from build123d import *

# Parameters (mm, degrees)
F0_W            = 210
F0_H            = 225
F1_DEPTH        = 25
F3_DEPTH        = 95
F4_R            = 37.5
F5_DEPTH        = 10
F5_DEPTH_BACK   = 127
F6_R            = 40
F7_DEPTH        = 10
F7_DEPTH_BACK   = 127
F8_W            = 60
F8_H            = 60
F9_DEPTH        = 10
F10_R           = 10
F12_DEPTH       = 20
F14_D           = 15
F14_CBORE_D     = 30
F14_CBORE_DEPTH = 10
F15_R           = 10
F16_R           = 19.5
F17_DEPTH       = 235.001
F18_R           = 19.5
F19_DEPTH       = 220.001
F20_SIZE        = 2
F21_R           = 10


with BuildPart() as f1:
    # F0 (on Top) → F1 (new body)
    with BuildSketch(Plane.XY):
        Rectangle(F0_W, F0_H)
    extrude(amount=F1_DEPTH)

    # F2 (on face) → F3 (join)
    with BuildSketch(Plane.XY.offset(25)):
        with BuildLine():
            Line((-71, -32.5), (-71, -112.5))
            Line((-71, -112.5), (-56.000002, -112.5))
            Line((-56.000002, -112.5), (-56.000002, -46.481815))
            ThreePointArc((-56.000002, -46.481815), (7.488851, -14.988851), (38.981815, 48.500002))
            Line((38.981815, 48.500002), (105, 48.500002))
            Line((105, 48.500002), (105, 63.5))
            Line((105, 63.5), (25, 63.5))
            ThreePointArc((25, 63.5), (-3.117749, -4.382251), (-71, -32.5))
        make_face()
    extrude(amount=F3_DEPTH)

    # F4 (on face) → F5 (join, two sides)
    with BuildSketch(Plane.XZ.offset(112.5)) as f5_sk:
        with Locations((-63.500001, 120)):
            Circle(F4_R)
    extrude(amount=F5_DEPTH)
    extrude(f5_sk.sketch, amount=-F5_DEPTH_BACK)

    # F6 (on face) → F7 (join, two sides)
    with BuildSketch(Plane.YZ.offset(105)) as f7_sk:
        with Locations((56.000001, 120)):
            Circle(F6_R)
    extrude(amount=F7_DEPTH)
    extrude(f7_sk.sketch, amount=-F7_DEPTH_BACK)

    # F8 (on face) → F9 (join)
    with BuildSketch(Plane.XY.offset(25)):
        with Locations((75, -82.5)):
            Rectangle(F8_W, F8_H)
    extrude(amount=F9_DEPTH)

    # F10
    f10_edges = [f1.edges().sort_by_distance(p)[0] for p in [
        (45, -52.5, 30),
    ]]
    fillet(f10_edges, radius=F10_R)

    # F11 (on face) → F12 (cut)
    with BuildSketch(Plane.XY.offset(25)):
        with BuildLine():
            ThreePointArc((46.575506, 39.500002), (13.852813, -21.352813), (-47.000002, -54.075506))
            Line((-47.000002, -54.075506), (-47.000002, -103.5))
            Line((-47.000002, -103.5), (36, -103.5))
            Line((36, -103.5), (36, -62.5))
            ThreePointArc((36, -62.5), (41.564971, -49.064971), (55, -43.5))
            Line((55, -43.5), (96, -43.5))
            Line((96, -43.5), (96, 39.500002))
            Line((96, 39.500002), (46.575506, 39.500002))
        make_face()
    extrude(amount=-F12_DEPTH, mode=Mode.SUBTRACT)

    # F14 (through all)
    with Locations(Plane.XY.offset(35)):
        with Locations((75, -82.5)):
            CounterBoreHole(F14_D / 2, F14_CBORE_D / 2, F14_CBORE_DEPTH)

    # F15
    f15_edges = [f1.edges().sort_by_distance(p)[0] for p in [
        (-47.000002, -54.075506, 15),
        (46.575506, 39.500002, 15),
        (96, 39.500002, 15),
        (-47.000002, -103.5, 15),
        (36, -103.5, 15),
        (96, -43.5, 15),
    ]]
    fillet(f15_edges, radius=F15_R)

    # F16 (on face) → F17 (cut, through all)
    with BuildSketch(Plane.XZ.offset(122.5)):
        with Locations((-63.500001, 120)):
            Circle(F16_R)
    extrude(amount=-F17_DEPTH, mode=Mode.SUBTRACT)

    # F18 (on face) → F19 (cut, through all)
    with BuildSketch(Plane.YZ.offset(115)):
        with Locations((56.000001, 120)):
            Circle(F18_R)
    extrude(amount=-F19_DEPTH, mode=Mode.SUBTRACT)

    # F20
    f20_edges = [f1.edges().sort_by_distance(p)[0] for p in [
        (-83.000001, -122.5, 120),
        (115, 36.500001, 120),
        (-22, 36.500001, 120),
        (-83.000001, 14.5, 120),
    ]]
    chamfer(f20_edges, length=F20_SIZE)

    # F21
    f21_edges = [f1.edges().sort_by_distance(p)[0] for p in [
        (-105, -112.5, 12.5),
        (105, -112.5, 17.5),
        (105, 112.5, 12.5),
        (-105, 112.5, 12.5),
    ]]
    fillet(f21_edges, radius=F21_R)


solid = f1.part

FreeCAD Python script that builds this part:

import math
import FreeCAD as App
import Part
import Sketcher

V = App.Vector


def edges_at(feature, points):
    """Names of the edges that pass closest to the given points."""
    edges = feature.Shape.Edges
    near = lambda p: min(range(len(edges)), key=lambda i: edges[i].distToShape(Part.Vertex(*p))[0])
    return sorted({f"Edge{near(p) + 1}" for p in points})

doc = App.newDocument("Part")
params = doc.addObject("Spreadsheet::Sheet", "Params")
for row, (alias, value) in enumerate([
    ("sketch1_width", "210 mm"),
    ("sketch1_height", "225 mm"),
    ("pad1_length", "25 mm"),
    ("sketch2_radius", "111 mm"),
    ("sketch2_radius2", "96 mm"),
    ("sketch2_width", "80 mm"),
    ("pad2_length", "95 mm"),
    ("sketch3_diameter", "75 mm"),
    ("pad3_length", "10 mm"),
    ("pad3_length2", "127 mm"),
    ("sketch4_diameter", "80 mm"),
    ("pad4_length", "10 mm"),
    ("pad4_length2", "127 mm"),
    ("sketch5_width", "60 mm"),
    ("pad5_length", "10 mm"),
    ("fillet_radius", "10 mm"),
    ("sketch6_radius", "18.999999 mm"),
    ("sketch6_width", "83.000002 mm"),
    ("sketch6_width2", "41 mm"),
    ("pocket1_length", "20 mm"),
    ("sketch7_diameter", "15 mm"),
    ("hole_diameter", "15 mm"),
    ("hole_cbore_diameter", "30 mm"),
    ("hole_cbore_depth", "10 mm"),
    ("fillet2_radius", "10 mm"),
    ("sketch8_diameter", "39 mm"),
    ("sketch9_diameter", "39 mm"),
    ("chamfer_size", "2 mm"),
    ("fillet3_radius", "10 mm"),
], start=1):
    params.set(f"A{row}", alias)
    params.set(f"B{row}", "=" + value)
    params.setAlias(f"B{row}", alias)

body = doc.addObject("PartDesign::Body", "Body")

# Sketch on XY plane
sketch1 = doc.addObject("Sketcher::SketchObject", "Sketch")
body.addObject(sketch1)
sketch1.AttachmentSupport = (doc.XY_Plane, [""])
sketch1.MapMode = "FlatFace"
sketch1.addGeometry([
    Part.LineSegment(V(-105, 112, 0), V(-105, -112, 0)),
    Part.LineSegment(V(-105, -112, 0), V(105, -112, 0)),
    Part.LineSegment(V(105, -112, 0), V(105, 112, 0)),
    Part.LineSegment(V(105, 112, 0), V(-105, 112, 0)),
], False)
sketch1.addConstraint([
    Sketcher.Constraint("Coincident", 0, 2, 1, 1),
    Sketcher.Constraint("Coincident", 1, 2, 2, 1),
    Sketcher.Constraint("Coincident", 2, 2, 3, 1),
    Sketcher.Constraint("Coincident", 3, 2, 0, 1),
    Sketcher.Constraint("Vertical", 0),
    Sketcher.Constraint("Horizontal", 1),
    Sketcher.Constraint("Vertical", 2),
    Sketcher.Constraint("Horizontal", 3),
    Sketcher.Constraint("Symmetric", 0, 2, 2, 2, -1, 1),
    Sketcher.Constraint("DistanceX", 1, 1, 1, 2, 210.0),
    Sketcher.Constraint("DistanceY", 0, 2, 0, 1, 225.0),
])
sketch1.setExpression("Constraints[9]", "Params.sketch1_width")
sketch1.setExpression("Constraints[10]", "Params.sketch1_height")
pad1 = doc.addObject("PartDesign::Pad", "Pad")
body.addObject(pad1)
pad1.Profile = sketch1
pad1.setExpression("Length", "Params.pad1_length")

# Sketch on XY plane
sketch2 = doc.addObject("Sketcher::SketchObject", "Sketch001")
body.addObject(sketch2)
sketch2.AttachmentSupport = (doc.XY_Plane, [""])
sketch2.MapMode = "FlatFace"
sketch2.AttachmentOffset = App.Placement(V(0, 0, 25), App.Rotation())
sketch2.addGeometry([
    Part.LineSegment(V(-71, -32, 0), V(-71, -112, 0)),  # 0
    Part.LineSegment(V(-71, -112, 0), V(-56, -112, 0)),  # 1
    Part.LineSegment(V(-56, -112, 0), V(-56, -46, 0)),  # 2
    Part.ArcOfCircle(Part.Circle(V(-71, 64, 0), V(0, 0, 1), 111), math.radians(-82), math.radians(-8)),  # 3
    Part.LineSegment(V(39, 49, 0), V(105, 49, 0)),  # 4
    Part.LineSegment(V(105, 49, 0), V(105, 64, 0)),  # 5
    Part.LineSegment(V(105, 64, 0), V(25, 64, 0)),  # 6
    Part.ArcOfCircle(Part.Circle(V(-71, 63, 0), V(0, 0, 1), 96), math.radians(-90), math.radians(0)),  # 7
], False)
sketch2.addConstraint([
    Sketcher.Constraint("Coincident", 0, 2, 1, 1),
    Sketcher.Constraint("Coincident", 1, 2, 2, 1),
    Sketcher.Constraint("Coincident", 2, 2, 3, 1),
    Sketcher.Constraint("Coincident", 3, 2, 4, 1),
    Sketcher.Constraint("Coincident", 4, 2, 5, 1),
    Sketcher.Constraint("Coincident", 5, 2, 6, 1),
    Sketcher.Constraint("Coincident", 6, 2, 7, 2),
    Sketcher.Constraint("Coincident", 7, 1, 0, 1),
    Sketcher.Constraint("Vertical", 0),
    Sketcher.Constraint("Horizontal", 1),
    Sketcher.Constraint("Vertical", 2),
    Sketcher.Constraint("Horizontal", 4),
    Sketcher.Constraint("Vertical", 5),
    Sketcher.Constraint("Horizontal", 6),
    Sketcher.Constraint("Coincident", 7, 3, 3, 3),
    Sketcher.Constraint("Horizontal", 7, 3, 5, 2),
    Sketcher.Constraint("Vertical", 7, 3, 0, 2),
    Sketcher.Constraint("Equal", 6, 0),
    Sketcher.Constraint("Equal", 4, 2),
    Sketcher.Constraint("Radius", 3, 111.0),
    Sketcher.Constraint("Radius", 7, 96.0),
    Sketcher.Constraint("DistanceX", 6, 2, 6, 1, 80.0),
    Sketcher.Constraint("DistanceX", 3, 3, -1, 1, 71.000002),
    Sketcher.Constraint("DistanceX", 3, 3, 1, 2, 15.0),
    Sketcher.Constraint("DistanceY", -1, 1, 3, 3, 63.500002),
])
sketch2.setExpression("Constraints[19]", "Params.sketch2_radius")
sketch2.setExpression("Constraints[20]", "Params.sketch2_radius2")
sketch2.setExpression("Constraints[21]", "Params.sketch2_width")
pad2 = doc.addObject("PartDesign::Pad", "Pad001")
body.addObject(pad2)
pad2.Profile = sketch2
pad2.setExpression("Length", "Params.pad2_length")

# Sketch on XZ plane
sketch3 = doc.addObject("Sketcher::SketchObject", "Sketch002")
body.addObject(sketch3)
sketch3.AttachmentSupport = (doc.XZ_Plane, [""])
sketch3.MapMode = "FlatFace"
sketch3.AttachmentOffset = App.Placement(V(0, 0, 112.5), App.Rotation())
sketch3.addGeometry(Part.Circle(V(-64, 120, 0), V(0, 0, 1), 38), False)
sketch3.addConstraint([
    Sketcher.Constraint("Diameter", 0, 75.0),
    Sketcher.Constraint("DistanceY", -1, 1, 0, 3, 120.0),
    Sketcher.Constraint("DistanceX", 0, 3, -1, 1, 63.500001),
])
sketch3.setExpression("Constraints[0]", "Params.sketch3_diameter")
pad3 = doc.addObject("PartDesign::Pad", "Pad002")
body.addObject(pad3)
pad3.Profile = sketch3
pad3.Type = "TwoLengths"
pad3.setExpression("Length", "Params.pad3_length")
pad3.setExpression("Length2", "Params.pad3_length2")

# Sketch on YZ plane
sketch4 = doc.addObject("Sketcher::SketchObject", "Sketch003")
body.addObject(sketch4)
sketch4.AttachmentSupport = (doc.YZ_Plane, [""])
sketch4.MapMode = "FlatFace"
sketch4.AttachmentOffset = App.Placement(V(0, 0, 105), App.Rotation())
sketch4.addGeometry(Part.Circle(V(56, 120, 0), V(0, 0, 1), 40), False)
sketch4.addConstraint([
    Sketcher.Constraint("Diameter", 0, 80.0),
    Sketcher.Constraint("DistanceX", -1, 1, 0, 3, 56.000001),
    Sketcher.Constraint("DistanceY", -1, 1, 0, 3, 120.0),
])
sketch4.setExpression("Constraints[0]", "Params.sketch4_diameter")
pad4 = doc.addObject("PartDesign::Pad", "Pad003")
body.addObject(pad4)
pad4.Profile = sketch4
pad4.Type = "TwoLengths"
pad4.setExpression("Length", "Params.pad4_length")
pad4.setExpression("Length2", "Params.pad4_length2")

# Sketch on XY plane
sketch5 = doc.addObject("Sketcher::SketchObject", "Sketch004")
body.addObject(sketch5)
sketch5.AttachmentSupport = (doc.XY_Plane, [""])
sketch5.MapMode = "FlatFace"
sketch5.AttachmentOffset = App.Placement(V(0, 0, 25), App.Rotation())
sketch5.addGeometry([
    Part.LineSegment(V(45, -52, 0), V(45, -112, 0)),
    Part.LineSegment(V(45, -112, 0), V(105, -112, 0)),
    Part.LineSegment(V(105, -112, 0), V(105, -52, 0)),
    Part.LineSegment(V(105, -52, 0), V(45, -52, 0)),
], False)
sketch5.addConstraint([
    Sketcher.Constraint("Coincident", 0, 2, 1, 1),
    Sketcher.Constraint("Coincident", 1, 2, 2, 1),
    Sketcher.Constraint("Coincident", 2, 2, 3, 1),
    Sketcher.Constraint("Coincident", 3, 2, 0, 1),
    Sketcher.Constraint("Vertical", 0),
    Sketcher.Constraint("Horizontal", 1),
    Sketcher.Constraint("Vertical", 2),
    Sketcher.Constraint("Horizontal", 3),
    Sketcher.Constraint("Equal", 3, 0),
    Sketcher.Constraint("DistanceX", 1, 1, 1, 2, 60.0),
    Sketcher.Constraint("DistanceX", -1, 1, 0, 2, 45.0),
    Sketcher.Constraint("DistanceY", 0, 2, -1, 1, 112.5),
])
sketch5.setExpression("Constraints[9]", "Params.sketch5_width")
pad5 = doc.addObject("PartDesign::Pad", "Pad004")
body.addObject(pad5)
pad5.Profile = sketch5
pad5.setExpression("Length", "Params.pad5_length")
doc.recompute()

fillet = doc.addObject("PartDesign::Fillet", "Fillet")
body.addObject(fillet)
fillet.Base = (pad5, edges_at(pad5, [(45, -52.5, 30)]))
fillet.setExpression("Radius", "Params.fillet_radius")

# Sketch on XY plane
sketch6 = doc.addObject("Sketcher::SketchObject", "Sketch005")
body.addObject(sketch6)
sketch6.AttachmentSupport = (doc.XY_Plane, [""])
sketch6.MapMode = "FlatFace"
sketch6.AttachmentOffset = App.Placement(V(0, 0, 25), App.Rotation())
sketch6.addGeometry([
    Part.ArcOfCircle(Part.Circle(V(-71, 63, 0), V(0, 0, 1), 120), math.radians(-78), math.radians(-12)),  # 0
    Part.LineSegment(V(-47, -54, 0), V(-47, -104, 0)),  # 1
    Part.LineSegment(V(-47, -104, 0), V(36, -104, 0)),  # 2
    Part.LineSegment(V(36, -104, 0), V(36, -62, 0)),  # 3
    Part.ArcOfCircle(Part.Circle(V(55, -62, 0), V(0, 0, 1), 19), math.radians(90), math.radians(180)),  # 4
    Part.LineSegment(V(55, -44, 0), V(96, -44, 0)),  # 5
    Part.LineSegment(V(96, -44, 0), V(96, 40, 0)),  # 6
    Part.LineSegment(V(96, 40, 0), V(47, 40, 0)),  # 7
], False)
sketch6.addConstraint([
    Sketcher.Constraint("Coincident", 0, 1, 1, 1),
    Sketcher.Constraint("Coincident", 1, 2, 2, 1),
    Sketcher.Constraint("Coincident", 2, 2, 3, 1),
    Sketcher.Constraint("Tangent", 3, 2, 4, 2),
    Sketcher.Constraint("Tangent", 4, 1, 5, 1),
    Sketcher.Constraint("Coincident", 5, 2, 6, 1),
    Sketcher.Constraint("Coincident", 6, 2, 7, 1),
    Sketcher.Constraint("Coincident", 7, 2, 0, 2),
    Sketcher.Constraint("Vertical", 1),
    Sketcher.Constraint("Horizontal", 2),
    Sketcher.Constraint("Vertical", 3),
    Sketcher.Constraint("Horizontal", 5),
    Sketcher.Constraint("Vertical", 6),
    Sketcher.Constraint("Horizontal", 7),
    Sketcher.Constraint("Equal", 7, 1),
    Sketcher.Constraint("Equal", 5, 3),
    Sketcher.Constraint("Equal", 2, 6),
    Sketcher.Constraint("Radius", 4, 18.999999),
    Sketcher.Constraint("DistanceX", 2, 1, 2, 2, 83.000002),
    Sketcher.Constraint("DistanceX", 5, 1, 5, 2, 41.0),
    Sketcher.Constraint("DistanceX", -1, 1, 4, 3, 54.999999),
    Sketcher.Constraint("DistanceY", 4, 3, -1, 1, 62.499999),
    Sketcher.Constraint("Radius", 0, 119.999993),
    Sketcher.Constraint("DistanceY", 0, 1, 0, 3, 117.575502),
])
sketch6.setExpression("Constraints[17]", "Params.sketch6_radius")
sketch6.setExpression("Constraints[18]", "Params.sketch6_width")
sketch6.setExpression("Constraints[19]", "Params.sketch6_width2")
pocket1 = doc.addObject("PartDesign::Pocket", "Pocket")
body.addObject(pocket1)
pocket1.Profile = sketch6
pocket1.setExpression("Length", "Params.pocket1_length")

# Sketch on XY plane
sketch7 = doc.addObject("Sketcher::SketchObject", "Sketch006")
body.addObject(sketch7)
sketch7.AttachmentSupport = (doc.XY_Plane, [""])
sketch7.MapMode = "FlatFace"
sketch7.AttachmentOffset = App.Placement(V(0, 0, 35), App.Rotation())
sketch7.addGeometry(Part.Circle(V(75, -82, 0), V(0, 0, 1), 8), False)
sketch7.addConstraint([
    Sketcher.Constraint("Diameter", 0, 15.0),
    Sketcher.Constraint("DistanceX", -1, 1, 0, 3, 75.0),
    Sketcher.Constraint("DistanceY", 0, 3, -1, 1, 82.5),
])
sketch7.setExpression("Constraints[0]", "Params.sketch7_diameter")
doc.recompute()
hole = doc.addObject("PartDesign::Hole", "Hole")
body.addObject(hole)
hole.Profile = sketch7
hole.ThreadType = "None"
hole.setExpression("Diameter", "Params.hole_diameter")
hole.DepthType = "ThroughAll"
hole.HoleCutType = "Counterbore"
hole.setExpression("HoleCutDiameter", "Params.hole_cbore_diameter")
hole.setExpression("HoleCutDepth", "Params.hole_cbore_depth")
doc.recompute()

fillet2 = doc.addObject("PartDesign::Fillet", "Fillet001")
body.addObject(fillet2)
fillet2.Base = (hole, edges_at(hole, [
    (-47, -54.076, 15),
    (46.576, 39.5, 15),
    (96, 39.5, 15),
    (-47, -103.5, 15),
    (36, -103.5, 15),
    (96, -43.5, 15),
]))
fillet2.setExpression("Radius", "Params.fillet2_radius")

# Sketch on XZ plane
sketch8 = doc.addObject("Sketcher::SketchObject", "Sketch007")
body.addObject(sketch8)
sketch8.AttachmentSupport = (doc.XZ_Plane, [""])
sketch8.MapMode = "FlatFace"
sketch8.AttachmentOffset = App.Placement(V(0, 0, 122.5), App.Rotation())
sketch8.addGeometry(Part.Circle(V(-64, 120, 0), V(0, 0, 1), 20), False)
sketch8.addConstraint([
    Sketcher.Constraint("Diameter", 0, 39.0),
    Sketcher.Constraint("DistanceY", -1, 1, 0, 3, 120.0),
    Sketcher.Constraint("DistanceX", 0, 3, -1, 1, 63.500001),
])
sketch8.setExpression("Constraints[0]", "Params.sketch8_diameter")
pocket2 = doc.addObject("PartDesign::Pocket", "Pocket001")
body.addObject(pocket2)
pocket2.Profile = sketch8
pocket2.Type = "ThroughAll"

# Sketch on YZ plane
sketch9 = doc.addObject("Sketcher::SketchObject", "Sketch008")
body.addObject(sketch9)
sketch9.AttachmentSupport = (doc.YZ_Plane, [""])
sketch9.MapMode = "FlatFace"
sketch9.AttachmentOffset = App.Placement(V(0, 0, 115), App.Rotation())
sketch9.addGeometry(Part.Circle(V(56, 120, 0), V(0, 0, 1), 20), False)
sketch9.addConstraint([
    Sketcher.Constraint("Diameter", 0, 39.0),
    Sketcher.Constraint("DistanceX", -1, 1, 0, 3, 56.000001),
    Sketcher.Constraint("DistanceY", -1, 1, 0, 3, 120.0),
])
sketch9.setExpression("Constraints[0]", "Params.sketch9_diameter")
pocket3 = doc.addObject("PartDesign::Pocket", "Pocket002")
body.addObject(pocket3)
pocket3.Profile = sketch9
pocket3.Type = "ThroughAll"
doc.recompute()

chamfer = doc.addObject("PartDesign::Chamfer", "Chamfer")
body.addObject(chamfer)
chamfer.Base = (pocket3, edges_at(pocket3, [
    (-83, -122.5, 120),
    (115, 36.5, 120),
    (-22, 36.5, 120),
    (-83, 14.5, 120),
]))
chamfer.setExpression("Size", "Params.chamfer_size")
doc.recompute()

fillet3 = doc.addObject("PartDesign::Fillet", "Fillet002")
body.addObject(fillet3)
fillet3.Base = (chamfer, edges_at(chamfer, [
    (-105, -112.5, 12.5),
    (105, -112.5, 17.5),
    (105, 112.5, 12.5),
    (-105, 112.5, 12.5),
]))
fillet3.setExpression("Radius", "Params.fillet3_radius")

doc.recompute()
